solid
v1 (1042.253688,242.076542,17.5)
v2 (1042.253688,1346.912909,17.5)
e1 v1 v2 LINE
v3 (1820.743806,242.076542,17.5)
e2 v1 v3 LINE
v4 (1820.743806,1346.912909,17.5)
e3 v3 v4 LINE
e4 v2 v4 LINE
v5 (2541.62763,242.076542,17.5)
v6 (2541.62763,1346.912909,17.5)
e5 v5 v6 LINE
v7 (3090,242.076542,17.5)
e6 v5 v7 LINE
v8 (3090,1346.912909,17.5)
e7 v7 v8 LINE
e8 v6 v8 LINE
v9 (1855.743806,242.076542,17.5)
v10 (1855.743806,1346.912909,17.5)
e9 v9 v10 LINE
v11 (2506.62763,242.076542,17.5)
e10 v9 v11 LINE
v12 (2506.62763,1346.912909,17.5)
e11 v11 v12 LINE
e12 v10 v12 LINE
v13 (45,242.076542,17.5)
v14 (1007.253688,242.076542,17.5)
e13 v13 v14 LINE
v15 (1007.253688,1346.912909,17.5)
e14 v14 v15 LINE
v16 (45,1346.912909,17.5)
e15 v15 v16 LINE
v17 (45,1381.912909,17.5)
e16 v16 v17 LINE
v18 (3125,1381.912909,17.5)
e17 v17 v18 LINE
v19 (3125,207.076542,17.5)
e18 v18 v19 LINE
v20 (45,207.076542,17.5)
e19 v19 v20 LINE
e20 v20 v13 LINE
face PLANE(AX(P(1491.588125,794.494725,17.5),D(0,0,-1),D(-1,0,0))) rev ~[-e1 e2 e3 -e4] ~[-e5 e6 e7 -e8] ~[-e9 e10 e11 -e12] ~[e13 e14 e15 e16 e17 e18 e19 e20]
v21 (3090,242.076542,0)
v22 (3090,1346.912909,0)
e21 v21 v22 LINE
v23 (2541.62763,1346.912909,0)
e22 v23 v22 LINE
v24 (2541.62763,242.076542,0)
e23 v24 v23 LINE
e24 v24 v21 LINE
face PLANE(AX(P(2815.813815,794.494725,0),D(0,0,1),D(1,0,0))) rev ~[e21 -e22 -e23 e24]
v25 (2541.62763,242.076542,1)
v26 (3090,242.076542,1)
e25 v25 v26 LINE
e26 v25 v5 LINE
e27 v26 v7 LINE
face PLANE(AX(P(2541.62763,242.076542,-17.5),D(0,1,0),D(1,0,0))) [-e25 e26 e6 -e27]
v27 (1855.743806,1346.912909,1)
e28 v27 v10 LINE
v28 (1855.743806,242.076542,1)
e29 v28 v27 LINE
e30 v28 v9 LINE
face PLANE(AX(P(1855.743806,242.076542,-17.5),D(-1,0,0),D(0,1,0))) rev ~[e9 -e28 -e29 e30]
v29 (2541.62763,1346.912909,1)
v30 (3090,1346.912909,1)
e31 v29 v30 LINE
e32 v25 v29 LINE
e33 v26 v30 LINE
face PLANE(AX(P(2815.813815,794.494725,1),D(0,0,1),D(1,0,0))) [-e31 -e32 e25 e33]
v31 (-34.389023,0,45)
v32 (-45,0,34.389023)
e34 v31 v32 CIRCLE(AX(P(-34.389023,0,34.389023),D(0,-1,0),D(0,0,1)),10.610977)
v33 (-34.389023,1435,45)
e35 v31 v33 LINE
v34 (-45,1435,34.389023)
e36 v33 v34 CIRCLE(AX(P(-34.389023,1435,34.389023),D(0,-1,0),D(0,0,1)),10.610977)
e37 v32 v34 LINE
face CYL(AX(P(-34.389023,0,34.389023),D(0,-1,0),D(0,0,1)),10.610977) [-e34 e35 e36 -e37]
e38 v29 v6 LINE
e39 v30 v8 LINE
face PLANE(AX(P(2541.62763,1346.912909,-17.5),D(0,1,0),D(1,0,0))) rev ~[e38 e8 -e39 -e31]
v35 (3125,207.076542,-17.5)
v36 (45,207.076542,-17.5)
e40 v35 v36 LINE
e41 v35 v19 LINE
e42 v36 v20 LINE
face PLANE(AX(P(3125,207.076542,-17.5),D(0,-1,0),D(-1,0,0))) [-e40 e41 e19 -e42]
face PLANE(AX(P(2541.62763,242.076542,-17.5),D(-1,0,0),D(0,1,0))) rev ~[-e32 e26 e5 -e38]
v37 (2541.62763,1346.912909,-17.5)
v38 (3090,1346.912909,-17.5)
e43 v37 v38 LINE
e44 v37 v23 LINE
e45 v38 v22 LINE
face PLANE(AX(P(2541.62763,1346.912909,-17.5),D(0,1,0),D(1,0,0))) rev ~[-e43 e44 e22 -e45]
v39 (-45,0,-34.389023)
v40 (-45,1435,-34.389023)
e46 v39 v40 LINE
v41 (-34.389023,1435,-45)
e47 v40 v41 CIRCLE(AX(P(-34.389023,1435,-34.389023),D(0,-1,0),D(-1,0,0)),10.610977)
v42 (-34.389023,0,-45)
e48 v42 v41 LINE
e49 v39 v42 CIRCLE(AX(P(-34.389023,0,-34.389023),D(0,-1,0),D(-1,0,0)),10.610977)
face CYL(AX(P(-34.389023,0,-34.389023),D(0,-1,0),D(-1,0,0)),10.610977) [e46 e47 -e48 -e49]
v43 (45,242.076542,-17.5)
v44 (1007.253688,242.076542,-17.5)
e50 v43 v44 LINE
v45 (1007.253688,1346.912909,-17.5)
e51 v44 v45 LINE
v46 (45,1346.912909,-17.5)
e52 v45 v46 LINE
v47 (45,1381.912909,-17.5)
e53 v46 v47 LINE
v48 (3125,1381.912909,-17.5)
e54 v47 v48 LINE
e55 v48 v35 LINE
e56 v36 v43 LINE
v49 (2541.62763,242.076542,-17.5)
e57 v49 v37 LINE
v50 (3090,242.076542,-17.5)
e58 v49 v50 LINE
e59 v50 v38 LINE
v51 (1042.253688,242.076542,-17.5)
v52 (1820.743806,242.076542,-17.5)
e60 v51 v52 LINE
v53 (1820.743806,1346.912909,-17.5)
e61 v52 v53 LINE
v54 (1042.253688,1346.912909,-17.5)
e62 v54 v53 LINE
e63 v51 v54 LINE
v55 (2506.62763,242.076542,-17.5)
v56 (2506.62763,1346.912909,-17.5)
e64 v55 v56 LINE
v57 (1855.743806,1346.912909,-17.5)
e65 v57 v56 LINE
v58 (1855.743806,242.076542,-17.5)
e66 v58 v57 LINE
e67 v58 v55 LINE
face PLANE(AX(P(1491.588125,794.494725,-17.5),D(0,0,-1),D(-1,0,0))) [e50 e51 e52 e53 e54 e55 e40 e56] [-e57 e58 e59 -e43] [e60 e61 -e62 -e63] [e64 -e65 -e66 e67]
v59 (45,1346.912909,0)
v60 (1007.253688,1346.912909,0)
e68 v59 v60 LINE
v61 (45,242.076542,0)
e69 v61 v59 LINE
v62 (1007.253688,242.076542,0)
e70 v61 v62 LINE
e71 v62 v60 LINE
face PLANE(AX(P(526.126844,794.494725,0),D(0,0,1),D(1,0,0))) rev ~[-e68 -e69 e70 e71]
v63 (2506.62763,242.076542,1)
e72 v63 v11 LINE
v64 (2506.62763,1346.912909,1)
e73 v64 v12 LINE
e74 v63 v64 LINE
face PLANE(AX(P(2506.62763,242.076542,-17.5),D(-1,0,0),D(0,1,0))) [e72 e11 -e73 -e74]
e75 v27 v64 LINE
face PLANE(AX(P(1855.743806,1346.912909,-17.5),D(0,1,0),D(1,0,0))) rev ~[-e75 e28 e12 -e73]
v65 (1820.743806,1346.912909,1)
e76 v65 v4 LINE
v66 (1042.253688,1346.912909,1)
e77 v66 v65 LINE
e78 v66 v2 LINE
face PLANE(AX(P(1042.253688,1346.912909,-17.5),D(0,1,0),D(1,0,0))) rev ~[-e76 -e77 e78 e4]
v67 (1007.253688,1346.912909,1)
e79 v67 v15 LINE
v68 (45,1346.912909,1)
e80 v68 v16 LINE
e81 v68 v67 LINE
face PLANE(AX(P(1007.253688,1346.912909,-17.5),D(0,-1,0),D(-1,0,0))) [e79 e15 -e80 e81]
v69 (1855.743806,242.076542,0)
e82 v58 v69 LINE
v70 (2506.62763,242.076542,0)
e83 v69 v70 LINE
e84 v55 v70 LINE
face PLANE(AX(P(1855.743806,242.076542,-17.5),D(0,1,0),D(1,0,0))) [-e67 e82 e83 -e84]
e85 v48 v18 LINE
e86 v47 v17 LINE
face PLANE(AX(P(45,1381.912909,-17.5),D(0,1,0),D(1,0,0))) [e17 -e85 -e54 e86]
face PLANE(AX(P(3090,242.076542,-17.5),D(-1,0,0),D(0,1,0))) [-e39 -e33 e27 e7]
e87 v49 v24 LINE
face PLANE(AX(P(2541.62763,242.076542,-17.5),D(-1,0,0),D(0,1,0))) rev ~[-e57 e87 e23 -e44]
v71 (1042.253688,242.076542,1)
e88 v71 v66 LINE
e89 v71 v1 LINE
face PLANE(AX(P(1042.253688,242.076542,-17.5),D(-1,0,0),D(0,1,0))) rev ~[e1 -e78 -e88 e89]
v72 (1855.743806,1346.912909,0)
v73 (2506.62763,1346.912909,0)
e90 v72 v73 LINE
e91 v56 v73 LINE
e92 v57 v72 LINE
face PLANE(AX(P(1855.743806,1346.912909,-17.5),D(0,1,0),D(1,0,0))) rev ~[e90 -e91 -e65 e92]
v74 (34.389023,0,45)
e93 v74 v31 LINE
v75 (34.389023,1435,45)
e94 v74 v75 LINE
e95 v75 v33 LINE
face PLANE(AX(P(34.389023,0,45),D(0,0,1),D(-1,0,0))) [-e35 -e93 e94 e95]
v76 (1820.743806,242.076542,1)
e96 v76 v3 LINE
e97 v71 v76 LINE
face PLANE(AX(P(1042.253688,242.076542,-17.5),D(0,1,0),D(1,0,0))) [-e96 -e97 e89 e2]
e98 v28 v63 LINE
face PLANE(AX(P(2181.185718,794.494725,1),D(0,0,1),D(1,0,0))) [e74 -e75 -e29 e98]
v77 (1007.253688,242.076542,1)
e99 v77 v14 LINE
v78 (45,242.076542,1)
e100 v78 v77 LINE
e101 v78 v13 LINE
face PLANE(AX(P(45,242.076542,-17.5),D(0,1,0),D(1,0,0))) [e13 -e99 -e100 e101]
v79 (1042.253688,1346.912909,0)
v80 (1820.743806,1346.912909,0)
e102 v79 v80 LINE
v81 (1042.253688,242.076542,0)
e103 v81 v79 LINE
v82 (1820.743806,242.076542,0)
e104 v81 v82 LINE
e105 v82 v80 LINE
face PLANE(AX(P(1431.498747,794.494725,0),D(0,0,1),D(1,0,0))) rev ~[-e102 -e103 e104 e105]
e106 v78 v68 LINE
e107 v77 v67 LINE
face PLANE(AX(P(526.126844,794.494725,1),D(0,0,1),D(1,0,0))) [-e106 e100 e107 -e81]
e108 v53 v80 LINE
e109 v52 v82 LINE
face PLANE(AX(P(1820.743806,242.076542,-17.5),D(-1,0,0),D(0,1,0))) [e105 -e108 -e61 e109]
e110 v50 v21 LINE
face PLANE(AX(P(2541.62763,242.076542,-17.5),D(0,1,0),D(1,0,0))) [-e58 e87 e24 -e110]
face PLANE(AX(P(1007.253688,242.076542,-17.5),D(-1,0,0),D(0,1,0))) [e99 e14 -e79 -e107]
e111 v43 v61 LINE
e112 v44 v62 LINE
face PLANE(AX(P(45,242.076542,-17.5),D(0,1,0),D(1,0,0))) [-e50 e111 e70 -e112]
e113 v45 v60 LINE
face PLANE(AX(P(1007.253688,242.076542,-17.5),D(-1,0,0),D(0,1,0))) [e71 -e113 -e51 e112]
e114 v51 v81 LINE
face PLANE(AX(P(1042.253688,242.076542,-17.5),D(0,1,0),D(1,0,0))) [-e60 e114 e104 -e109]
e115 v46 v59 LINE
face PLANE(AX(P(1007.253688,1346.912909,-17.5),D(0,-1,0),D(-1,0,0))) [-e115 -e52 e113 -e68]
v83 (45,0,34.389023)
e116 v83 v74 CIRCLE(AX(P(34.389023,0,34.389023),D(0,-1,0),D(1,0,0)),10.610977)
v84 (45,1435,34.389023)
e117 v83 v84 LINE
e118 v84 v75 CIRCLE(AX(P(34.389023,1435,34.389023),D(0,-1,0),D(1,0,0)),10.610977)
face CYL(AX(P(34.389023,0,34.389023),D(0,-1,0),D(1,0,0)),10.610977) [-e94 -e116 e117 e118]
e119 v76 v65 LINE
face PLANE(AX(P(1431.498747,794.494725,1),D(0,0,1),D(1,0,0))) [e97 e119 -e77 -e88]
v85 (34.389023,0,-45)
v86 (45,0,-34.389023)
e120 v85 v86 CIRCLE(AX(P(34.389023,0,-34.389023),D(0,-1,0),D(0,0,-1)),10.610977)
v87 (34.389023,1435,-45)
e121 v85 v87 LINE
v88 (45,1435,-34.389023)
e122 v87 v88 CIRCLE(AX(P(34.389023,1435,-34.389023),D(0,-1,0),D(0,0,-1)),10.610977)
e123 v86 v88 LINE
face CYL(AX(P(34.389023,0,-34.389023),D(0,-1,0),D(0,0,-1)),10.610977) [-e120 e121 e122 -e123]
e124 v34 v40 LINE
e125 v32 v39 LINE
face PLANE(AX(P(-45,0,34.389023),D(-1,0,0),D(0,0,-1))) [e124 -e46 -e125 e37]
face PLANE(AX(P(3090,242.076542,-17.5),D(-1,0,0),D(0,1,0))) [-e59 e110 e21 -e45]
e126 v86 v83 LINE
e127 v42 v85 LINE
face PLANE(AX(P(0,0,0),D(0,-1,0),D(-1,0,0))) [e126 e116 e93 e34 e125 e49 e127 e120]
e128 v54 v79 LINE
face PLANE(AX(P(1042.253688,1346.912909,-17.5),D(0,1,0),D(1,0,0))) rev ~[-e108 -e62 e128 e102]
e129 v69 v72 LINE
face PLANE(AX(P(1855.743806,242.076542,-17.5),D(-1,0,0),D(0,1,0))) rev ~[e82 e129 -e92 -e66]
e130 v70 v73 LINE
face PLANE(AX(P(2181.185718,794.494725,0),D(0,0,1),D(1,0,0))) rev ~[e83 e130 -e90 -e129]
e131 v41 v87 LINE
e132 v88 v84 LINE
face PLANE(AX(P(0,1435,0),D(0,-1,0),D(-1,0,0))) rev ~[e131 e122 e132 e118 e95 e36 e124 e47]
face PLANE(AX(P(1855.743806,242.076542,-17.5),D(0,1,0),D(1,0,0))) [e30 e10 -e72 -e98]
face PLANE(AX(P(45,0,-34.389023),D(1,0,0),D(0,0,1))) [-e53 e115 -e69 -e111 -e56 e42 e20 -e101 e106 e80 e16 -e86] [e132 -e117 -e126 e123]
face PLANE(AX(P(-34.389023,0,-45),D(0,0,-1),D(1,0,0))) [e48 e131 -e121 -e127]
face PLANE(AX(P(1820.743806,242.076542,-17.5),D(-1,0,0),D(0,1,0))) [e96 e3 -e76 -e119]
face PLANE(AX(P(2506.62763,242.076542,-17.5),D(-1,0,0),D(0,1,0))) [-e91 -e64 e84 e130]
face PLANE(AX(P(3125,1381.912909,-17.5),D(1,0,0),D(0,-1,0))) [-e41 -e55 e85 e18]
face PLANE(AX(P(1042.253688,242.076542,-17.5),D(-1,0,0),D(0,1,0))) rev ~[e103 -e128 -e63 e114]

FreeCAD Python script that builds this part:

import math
import FreeCAD as App
import Part
import Sketcher
Q = App.Units.Quantity


def add_polygon(sketch, points):
    """Adds a closed chain of lines whose ends are joined by coincident constraints."""
    first, n = sketch.GeometryCount, len(points)
    for a, b in zip(points, points[1:] + points[:1]):
        sketch.addGeometry(Part.LineSegment(App.Vector(*a, 0), App.Vector(*b, 0)), False)
    for i in range(n):
        sketch.addConstraint(Sketcher.Constraint("Coincident", first + i, 2, first + (i + 1) % n, 1))

doc = App.newDocument("Part")
body = doc.addObject("PartDesign::Body", "Body")

# Sketch on XZ plane
sketch1 = body.newObject("Sketcher::SketchObject", "Sketch")
sketch1.AttachmentSupport = (doc.getObject("XZ_Plane"), [""])
sketch1.MapMode = "FlatFace"
sketch1.addGeometry([
    Part.LineSegment(App.Vector(34.389023, -45, 0), App.Vector(-34.389023, -45, 0)),  # 0
    Part.ArcOfCircle(Part.Circle(App.Vector(-34.389023, -34.389023, 0), App.Vector(0, 0, 1), 10.610977), math.radians(180), math.radians(270)),  # 1
    Part.LineSegment(App.Vector(-45, -34.389023, 0), App.Vector(-45, 34.389023, 0)),  # 2
    Part.ArcOfCircle(Part.Circle(App.Vector(-34.389023, 34.389023, 0), App.Vector(0, 0, 1), 10.610977), math.radians(90), math.radians(180)),  # 3
    Part.LineSegment(App.Vector(-34.389023, 45, 0), App.Vector(34.389023, 45, 0)),  # 4
    Part.ArcOfCircle(Part.Circle(App.Vector(34.389023, 34.389023, 0), App.Vector(0, 0, 1), 10.610977), math.radians(0), math.radians(90)),  # 5
    Part.LineSegment(App.Vector(45, 34.389023, 0), App.Vector(45, -34.389023, 0)),  # 6
    Part.ArcOfCircle(Part.Circle(App.Vector(34.389023, -34.389023, 0), App.Vector(0, 0, 1), 10.610977), math.radians(-90), math.radians(0)),  # 7
], False)
sketch1.addConstraint([
    Sketcher.Constraint("Tangent", 0, 2, 1, 2),
    Sketcher.Constraint("Tangent", 1, 1, 2, 1),
    Sketcher.Constraint("Tangent", 2, 2, 3, 2),
    Sketcher.Constraint("Tangent", 3, 1, 4, 1),
    Sketcher.Constraint("Tangent", 4, 2, 5, 2),
    Sketcher.Constraint("Tangent", 5, 1, 6, 1),
    Sketcher.Constraint("Tangent", 6, 2, 7, 2),
    Sketcher.Constraint("Tangent", 7, 1, 0, 1),
    Sketcher.Constraint("Horizontal", 0),
    Sketcher.Constraint("Vertical", 2),
    Sketcher.Constraint("Horizontal", 4),
    Sketcher.Constraint("Vertical", 6),
    Sketcher.Constraint("Equal", 1, 3),
    Sketcher.Constraint("Equal", 3, 5),
    Sketcher.Constraint("Equal", 5, 7),
    Sketcher.Constraint("Symmetric", 1, 3, 5, 3, -1, 1),
    Sketcher.Constraint("Equal", 4, 2),
    Sketcher.Constraint("DistanceY", 0, 2, -1, 1, Q("45 mm")),
    Sketcher.Constraint("Radius", 1, Q("10.610977 mm")),
])
pad1 = body.newObject("PartDesign::Pad", "Pad")
pad1.Profile = sketch1
pad1.Length = 1435
pad1.Reversed = True

# Sketch on XY plane
sketch2 = body.newObject("Sketcher::SketchObject", "Sketch001")
sketch2.AttachmentSupport = (doc.getObject("XY_Plane"), [""])
sketch2.MapMode = "FlatFace"
add_polygon(sketch2, [(3125, 1381.912909), (45, 1381.912909), (45, 1346.912909), (1007.253688, 1346.912909), (1007.253688, 242.076542), (45, 242.076542), (45, 207.076542), (3125, 207.076542)])  # lines 0-7
add_polygon(sketch2, [(2541.62763, 242.076542), (2541.62763, 1346.912909), (3090, 1346.912909), (3090, 242.076542)])  # lines 8-11
add_polygon(sketch2, [(1855.743806, 242.076542), (1855.743806, 1346.912909), (2506.62763, 1346.912909), (2506.62763, 242.076542)])  # lines 12-15
add_polygon(sketch2, [(1042.253688, 242.076542), (1042.253688, 1346.912909), (1820.743806, 1346.912909), (1820.743806, 242.076542)])  # lines 16-19
sketch2.addConstraint([
    Sketcher.Constraint("Horizontal", 0),
    Sketcher.Constraint("Vertical", 1),
    Sketcher.Constraint("Horizontal", 2),
    Sketcher.Constraint("Vertical", 3),
    Sketcher.Constraint("Horizontal", 4),
    Sketcher.Constraint("Vertical", 5),
    Sketcher.Constraint("Horizontal", 6),
    Sketcher.Constraint("Vertical", 7),
    Sketcher.Constraint("Vertical", 8),
    Sketcher.Constraint("Horizontal", 9),
    Sketcher.Constraint("Vertical", 10),
    Sketcher.Constraint("Horizontal", 11),
    Sketcher.Constraint("Vertical", 12),
    Sketcher.Constraint("Horizontal", 13),
    Sketcher.Constraint("Vertical", 14),
    Sketcher.Constraint("Horizontal", 15),
    Sketcher.Constraint("Vertical", 16),
    Sketcher.Constraint("Horizontal", 17),
    Sketcher.Constraint("Vertical", 18),
    Sketcher.Constraint("Horizontal", 19),
    Sketcher.Constraint("Horizontal", 2, 2, 8, 2),
    Sketcher.Constraint("Horizontal", 4, 2, 10, 2),
    Sketcher.Constraint("Horizontal", 9, 2, 12, 2),
    Sketcher.Constraint("Horizontal", 11, 2, 14, 2),
    Sketcher.Constraint("Horizontal", 13, 2, 16, 2),
    Sketcher.Constraint("Horizontal", 15, 2, 18, 2),
    Sketcher.Constraint("Vertical", 1, 2, 4, 2),
    Sketcher.Constraint("Equal", 1, 5),
    Sketcher.Constraint("DistanceX", 0, 2, 0, 1, Q("3080 mm")),
    Sketcher.Constraint("DistanceY", 1, 2, 1, 1, Q("35 mm")),
    Sketcher.Constraint("DistanceX", -1, 1, 0, 2, Q("45 mm")),
    Sketcher.Constraint("DistanceX", -1, 1, 9, 2, Q("3090 mm")),
    Sketcher.Constraint("DistanceX", 13, 2, 8, 2, Q("35 mm")),
    Sketcher.Constraint("DistanceX", 2, 2, 16, 2, Q("35 mm")),
    Sketcher.Constraint("DistanceX", 17, 2, 12, 2, Q("35 mm")),
    Sketcher.Constraint("DistanceX", 2, 1, 2, 2, Q("962.253688 mm")),
    Sketcher.Constraint("DistanceX", 9, 1, 9, 2, Q("548.37237 mm")),
    Sketcher.Constraint("DistanceX", 13, 1, 13, 2, Q("650.883825 mm")),
    Sketcher.Constraint("DistanceY", 3, 2, 3, 1, Q("1104.836367 mm")),
    Sketcher.Constraint("DistanceY", -1, 1, 0, 2, Q("1381.912909 mm")),
])
pad2 = body.newObject("PartDesign::Pad", "Pad001")
pad2.Profile = sketch2
pad2.Type = "TwoLengths"
pad2.Length = 17.5
pad2.Length2 = 17.5

# Sketch on XY plane
sketch3 = body.newObject("Sketcher::SketchObject", "Sketch002")
sketch3.AttachmentSupport = (doc.getObject("XY_Plane"), [""])
sketch3.MapMode = "FlatFace"
add_polygon(sketch3, [(45, 1346.912909), (45, 242.076542), (1007.253688, 242.076542), (1007.253688, 1346.912909)])  # lines 0-3
add_polygon(sketch3, [(1042.253688, 1346.912909), (1042.253688, 242.076542), (1820.743806, 242.076542), (1820.743806, 1346.912909)])  # lines 4-7
add_polygon(sketch3, [(1855.743806, 1346.912909), (1855.743806, 242.076542), (2506.62763, 242.076542), (2506.62763, 1346.912909)])  # lines 8-11
add_polygon(sketch3, [(2541.62763, 1346.912909), (2541.62763, 242.076542), (3090, 242.076542), (3090, 1346.912909)])  # lines 12-15
sketch3.addConstraint([
    Sketcher.Constraint("Vertical", 0),
    Sketcher.Constraint("Horizontal", 1),
    Sketcher.Constraint("Vertical", 2),
    Sketcher.Constraint("Horizontal", 3),
    Sketcher.Constraint("Vertical", 4),
    Sketcher.Constraint("Horizontal", 5),
    Sketcher.Constraint("Vertical", 6),
    Sketcher.Constraint("Horizontal", 7),
    Sketcher.Constraint("Vertical", 8),
    Sketcher.Constraint("Horizontal", 9),
    Sketcher.Constraint("Vertical", 10),
    Sketcher.Constraint("Horizontal", 11),
    Sketcher.Constraint("Vertical", 12),
    Sketcher.Constraint("Horizontal", 13),
    Sketcher.Constraint("Vertical", 14),
    Sketcher.Constraint("Horizontal", 15),
    Sketcher.Constraint("Horizontal", 1, 2, 4, 2),
    Sketcher.Constraint("Horizontal", 3, 2, 6, 2),
    Sketcher.Constraint("Horizontal", 5, 2, 8, 2),
    Sketcher.Constraint("Horizontal", 7, 2, 10, 2),
    Sketcher.Constraint("Horizontal", 9, 2, 12, 2),
    Sketcher.Constraint("Horizontal", 11, 2, 14, 2),
    Sketcher.Constraint("DistanceX", -1, 1, 0, 2, Q("45 mm")),
    Sketcher.Constraint("DistanceX", -1, 1, 13, 2, Q("3090 mm")),
    Sketcher.Constraint("DistanceX", 1, 2, 4, 2, Q("35 mm")),
    Sketcher.Constraint("DistanceX", 5, 2, 8, 2, Q("35 mm")),
    Sketcher.Constraint("DistanceX", 9, 2, 12, 2, Q("35 mm")),
    Sketcher.Constraint("DistanceX", 1, 1, 1, 2, Q("962.253688 mm")),
    Sketcher.Constraint("DistanceX", 13, 1, 13, 2, Q("548.37237 mm")),
    Sketcher.Constraint("DistanceX", 5, 1, 5, 2, Q("778.490118 mm")),
    Sketcher.Constraint("DistanceY", 0, 2, 0, 1, Q("1104.836367 mm")),
    Sketcher.Constraint("DistanceY", -1, 1, 0, 2, Q("242.076542 mm")),
])
pad3 = body.newObject("PartDesign::Pad", "Pad002")
pad3.Profile = sketch3
pad3.Length = 1

doc.recompute()
